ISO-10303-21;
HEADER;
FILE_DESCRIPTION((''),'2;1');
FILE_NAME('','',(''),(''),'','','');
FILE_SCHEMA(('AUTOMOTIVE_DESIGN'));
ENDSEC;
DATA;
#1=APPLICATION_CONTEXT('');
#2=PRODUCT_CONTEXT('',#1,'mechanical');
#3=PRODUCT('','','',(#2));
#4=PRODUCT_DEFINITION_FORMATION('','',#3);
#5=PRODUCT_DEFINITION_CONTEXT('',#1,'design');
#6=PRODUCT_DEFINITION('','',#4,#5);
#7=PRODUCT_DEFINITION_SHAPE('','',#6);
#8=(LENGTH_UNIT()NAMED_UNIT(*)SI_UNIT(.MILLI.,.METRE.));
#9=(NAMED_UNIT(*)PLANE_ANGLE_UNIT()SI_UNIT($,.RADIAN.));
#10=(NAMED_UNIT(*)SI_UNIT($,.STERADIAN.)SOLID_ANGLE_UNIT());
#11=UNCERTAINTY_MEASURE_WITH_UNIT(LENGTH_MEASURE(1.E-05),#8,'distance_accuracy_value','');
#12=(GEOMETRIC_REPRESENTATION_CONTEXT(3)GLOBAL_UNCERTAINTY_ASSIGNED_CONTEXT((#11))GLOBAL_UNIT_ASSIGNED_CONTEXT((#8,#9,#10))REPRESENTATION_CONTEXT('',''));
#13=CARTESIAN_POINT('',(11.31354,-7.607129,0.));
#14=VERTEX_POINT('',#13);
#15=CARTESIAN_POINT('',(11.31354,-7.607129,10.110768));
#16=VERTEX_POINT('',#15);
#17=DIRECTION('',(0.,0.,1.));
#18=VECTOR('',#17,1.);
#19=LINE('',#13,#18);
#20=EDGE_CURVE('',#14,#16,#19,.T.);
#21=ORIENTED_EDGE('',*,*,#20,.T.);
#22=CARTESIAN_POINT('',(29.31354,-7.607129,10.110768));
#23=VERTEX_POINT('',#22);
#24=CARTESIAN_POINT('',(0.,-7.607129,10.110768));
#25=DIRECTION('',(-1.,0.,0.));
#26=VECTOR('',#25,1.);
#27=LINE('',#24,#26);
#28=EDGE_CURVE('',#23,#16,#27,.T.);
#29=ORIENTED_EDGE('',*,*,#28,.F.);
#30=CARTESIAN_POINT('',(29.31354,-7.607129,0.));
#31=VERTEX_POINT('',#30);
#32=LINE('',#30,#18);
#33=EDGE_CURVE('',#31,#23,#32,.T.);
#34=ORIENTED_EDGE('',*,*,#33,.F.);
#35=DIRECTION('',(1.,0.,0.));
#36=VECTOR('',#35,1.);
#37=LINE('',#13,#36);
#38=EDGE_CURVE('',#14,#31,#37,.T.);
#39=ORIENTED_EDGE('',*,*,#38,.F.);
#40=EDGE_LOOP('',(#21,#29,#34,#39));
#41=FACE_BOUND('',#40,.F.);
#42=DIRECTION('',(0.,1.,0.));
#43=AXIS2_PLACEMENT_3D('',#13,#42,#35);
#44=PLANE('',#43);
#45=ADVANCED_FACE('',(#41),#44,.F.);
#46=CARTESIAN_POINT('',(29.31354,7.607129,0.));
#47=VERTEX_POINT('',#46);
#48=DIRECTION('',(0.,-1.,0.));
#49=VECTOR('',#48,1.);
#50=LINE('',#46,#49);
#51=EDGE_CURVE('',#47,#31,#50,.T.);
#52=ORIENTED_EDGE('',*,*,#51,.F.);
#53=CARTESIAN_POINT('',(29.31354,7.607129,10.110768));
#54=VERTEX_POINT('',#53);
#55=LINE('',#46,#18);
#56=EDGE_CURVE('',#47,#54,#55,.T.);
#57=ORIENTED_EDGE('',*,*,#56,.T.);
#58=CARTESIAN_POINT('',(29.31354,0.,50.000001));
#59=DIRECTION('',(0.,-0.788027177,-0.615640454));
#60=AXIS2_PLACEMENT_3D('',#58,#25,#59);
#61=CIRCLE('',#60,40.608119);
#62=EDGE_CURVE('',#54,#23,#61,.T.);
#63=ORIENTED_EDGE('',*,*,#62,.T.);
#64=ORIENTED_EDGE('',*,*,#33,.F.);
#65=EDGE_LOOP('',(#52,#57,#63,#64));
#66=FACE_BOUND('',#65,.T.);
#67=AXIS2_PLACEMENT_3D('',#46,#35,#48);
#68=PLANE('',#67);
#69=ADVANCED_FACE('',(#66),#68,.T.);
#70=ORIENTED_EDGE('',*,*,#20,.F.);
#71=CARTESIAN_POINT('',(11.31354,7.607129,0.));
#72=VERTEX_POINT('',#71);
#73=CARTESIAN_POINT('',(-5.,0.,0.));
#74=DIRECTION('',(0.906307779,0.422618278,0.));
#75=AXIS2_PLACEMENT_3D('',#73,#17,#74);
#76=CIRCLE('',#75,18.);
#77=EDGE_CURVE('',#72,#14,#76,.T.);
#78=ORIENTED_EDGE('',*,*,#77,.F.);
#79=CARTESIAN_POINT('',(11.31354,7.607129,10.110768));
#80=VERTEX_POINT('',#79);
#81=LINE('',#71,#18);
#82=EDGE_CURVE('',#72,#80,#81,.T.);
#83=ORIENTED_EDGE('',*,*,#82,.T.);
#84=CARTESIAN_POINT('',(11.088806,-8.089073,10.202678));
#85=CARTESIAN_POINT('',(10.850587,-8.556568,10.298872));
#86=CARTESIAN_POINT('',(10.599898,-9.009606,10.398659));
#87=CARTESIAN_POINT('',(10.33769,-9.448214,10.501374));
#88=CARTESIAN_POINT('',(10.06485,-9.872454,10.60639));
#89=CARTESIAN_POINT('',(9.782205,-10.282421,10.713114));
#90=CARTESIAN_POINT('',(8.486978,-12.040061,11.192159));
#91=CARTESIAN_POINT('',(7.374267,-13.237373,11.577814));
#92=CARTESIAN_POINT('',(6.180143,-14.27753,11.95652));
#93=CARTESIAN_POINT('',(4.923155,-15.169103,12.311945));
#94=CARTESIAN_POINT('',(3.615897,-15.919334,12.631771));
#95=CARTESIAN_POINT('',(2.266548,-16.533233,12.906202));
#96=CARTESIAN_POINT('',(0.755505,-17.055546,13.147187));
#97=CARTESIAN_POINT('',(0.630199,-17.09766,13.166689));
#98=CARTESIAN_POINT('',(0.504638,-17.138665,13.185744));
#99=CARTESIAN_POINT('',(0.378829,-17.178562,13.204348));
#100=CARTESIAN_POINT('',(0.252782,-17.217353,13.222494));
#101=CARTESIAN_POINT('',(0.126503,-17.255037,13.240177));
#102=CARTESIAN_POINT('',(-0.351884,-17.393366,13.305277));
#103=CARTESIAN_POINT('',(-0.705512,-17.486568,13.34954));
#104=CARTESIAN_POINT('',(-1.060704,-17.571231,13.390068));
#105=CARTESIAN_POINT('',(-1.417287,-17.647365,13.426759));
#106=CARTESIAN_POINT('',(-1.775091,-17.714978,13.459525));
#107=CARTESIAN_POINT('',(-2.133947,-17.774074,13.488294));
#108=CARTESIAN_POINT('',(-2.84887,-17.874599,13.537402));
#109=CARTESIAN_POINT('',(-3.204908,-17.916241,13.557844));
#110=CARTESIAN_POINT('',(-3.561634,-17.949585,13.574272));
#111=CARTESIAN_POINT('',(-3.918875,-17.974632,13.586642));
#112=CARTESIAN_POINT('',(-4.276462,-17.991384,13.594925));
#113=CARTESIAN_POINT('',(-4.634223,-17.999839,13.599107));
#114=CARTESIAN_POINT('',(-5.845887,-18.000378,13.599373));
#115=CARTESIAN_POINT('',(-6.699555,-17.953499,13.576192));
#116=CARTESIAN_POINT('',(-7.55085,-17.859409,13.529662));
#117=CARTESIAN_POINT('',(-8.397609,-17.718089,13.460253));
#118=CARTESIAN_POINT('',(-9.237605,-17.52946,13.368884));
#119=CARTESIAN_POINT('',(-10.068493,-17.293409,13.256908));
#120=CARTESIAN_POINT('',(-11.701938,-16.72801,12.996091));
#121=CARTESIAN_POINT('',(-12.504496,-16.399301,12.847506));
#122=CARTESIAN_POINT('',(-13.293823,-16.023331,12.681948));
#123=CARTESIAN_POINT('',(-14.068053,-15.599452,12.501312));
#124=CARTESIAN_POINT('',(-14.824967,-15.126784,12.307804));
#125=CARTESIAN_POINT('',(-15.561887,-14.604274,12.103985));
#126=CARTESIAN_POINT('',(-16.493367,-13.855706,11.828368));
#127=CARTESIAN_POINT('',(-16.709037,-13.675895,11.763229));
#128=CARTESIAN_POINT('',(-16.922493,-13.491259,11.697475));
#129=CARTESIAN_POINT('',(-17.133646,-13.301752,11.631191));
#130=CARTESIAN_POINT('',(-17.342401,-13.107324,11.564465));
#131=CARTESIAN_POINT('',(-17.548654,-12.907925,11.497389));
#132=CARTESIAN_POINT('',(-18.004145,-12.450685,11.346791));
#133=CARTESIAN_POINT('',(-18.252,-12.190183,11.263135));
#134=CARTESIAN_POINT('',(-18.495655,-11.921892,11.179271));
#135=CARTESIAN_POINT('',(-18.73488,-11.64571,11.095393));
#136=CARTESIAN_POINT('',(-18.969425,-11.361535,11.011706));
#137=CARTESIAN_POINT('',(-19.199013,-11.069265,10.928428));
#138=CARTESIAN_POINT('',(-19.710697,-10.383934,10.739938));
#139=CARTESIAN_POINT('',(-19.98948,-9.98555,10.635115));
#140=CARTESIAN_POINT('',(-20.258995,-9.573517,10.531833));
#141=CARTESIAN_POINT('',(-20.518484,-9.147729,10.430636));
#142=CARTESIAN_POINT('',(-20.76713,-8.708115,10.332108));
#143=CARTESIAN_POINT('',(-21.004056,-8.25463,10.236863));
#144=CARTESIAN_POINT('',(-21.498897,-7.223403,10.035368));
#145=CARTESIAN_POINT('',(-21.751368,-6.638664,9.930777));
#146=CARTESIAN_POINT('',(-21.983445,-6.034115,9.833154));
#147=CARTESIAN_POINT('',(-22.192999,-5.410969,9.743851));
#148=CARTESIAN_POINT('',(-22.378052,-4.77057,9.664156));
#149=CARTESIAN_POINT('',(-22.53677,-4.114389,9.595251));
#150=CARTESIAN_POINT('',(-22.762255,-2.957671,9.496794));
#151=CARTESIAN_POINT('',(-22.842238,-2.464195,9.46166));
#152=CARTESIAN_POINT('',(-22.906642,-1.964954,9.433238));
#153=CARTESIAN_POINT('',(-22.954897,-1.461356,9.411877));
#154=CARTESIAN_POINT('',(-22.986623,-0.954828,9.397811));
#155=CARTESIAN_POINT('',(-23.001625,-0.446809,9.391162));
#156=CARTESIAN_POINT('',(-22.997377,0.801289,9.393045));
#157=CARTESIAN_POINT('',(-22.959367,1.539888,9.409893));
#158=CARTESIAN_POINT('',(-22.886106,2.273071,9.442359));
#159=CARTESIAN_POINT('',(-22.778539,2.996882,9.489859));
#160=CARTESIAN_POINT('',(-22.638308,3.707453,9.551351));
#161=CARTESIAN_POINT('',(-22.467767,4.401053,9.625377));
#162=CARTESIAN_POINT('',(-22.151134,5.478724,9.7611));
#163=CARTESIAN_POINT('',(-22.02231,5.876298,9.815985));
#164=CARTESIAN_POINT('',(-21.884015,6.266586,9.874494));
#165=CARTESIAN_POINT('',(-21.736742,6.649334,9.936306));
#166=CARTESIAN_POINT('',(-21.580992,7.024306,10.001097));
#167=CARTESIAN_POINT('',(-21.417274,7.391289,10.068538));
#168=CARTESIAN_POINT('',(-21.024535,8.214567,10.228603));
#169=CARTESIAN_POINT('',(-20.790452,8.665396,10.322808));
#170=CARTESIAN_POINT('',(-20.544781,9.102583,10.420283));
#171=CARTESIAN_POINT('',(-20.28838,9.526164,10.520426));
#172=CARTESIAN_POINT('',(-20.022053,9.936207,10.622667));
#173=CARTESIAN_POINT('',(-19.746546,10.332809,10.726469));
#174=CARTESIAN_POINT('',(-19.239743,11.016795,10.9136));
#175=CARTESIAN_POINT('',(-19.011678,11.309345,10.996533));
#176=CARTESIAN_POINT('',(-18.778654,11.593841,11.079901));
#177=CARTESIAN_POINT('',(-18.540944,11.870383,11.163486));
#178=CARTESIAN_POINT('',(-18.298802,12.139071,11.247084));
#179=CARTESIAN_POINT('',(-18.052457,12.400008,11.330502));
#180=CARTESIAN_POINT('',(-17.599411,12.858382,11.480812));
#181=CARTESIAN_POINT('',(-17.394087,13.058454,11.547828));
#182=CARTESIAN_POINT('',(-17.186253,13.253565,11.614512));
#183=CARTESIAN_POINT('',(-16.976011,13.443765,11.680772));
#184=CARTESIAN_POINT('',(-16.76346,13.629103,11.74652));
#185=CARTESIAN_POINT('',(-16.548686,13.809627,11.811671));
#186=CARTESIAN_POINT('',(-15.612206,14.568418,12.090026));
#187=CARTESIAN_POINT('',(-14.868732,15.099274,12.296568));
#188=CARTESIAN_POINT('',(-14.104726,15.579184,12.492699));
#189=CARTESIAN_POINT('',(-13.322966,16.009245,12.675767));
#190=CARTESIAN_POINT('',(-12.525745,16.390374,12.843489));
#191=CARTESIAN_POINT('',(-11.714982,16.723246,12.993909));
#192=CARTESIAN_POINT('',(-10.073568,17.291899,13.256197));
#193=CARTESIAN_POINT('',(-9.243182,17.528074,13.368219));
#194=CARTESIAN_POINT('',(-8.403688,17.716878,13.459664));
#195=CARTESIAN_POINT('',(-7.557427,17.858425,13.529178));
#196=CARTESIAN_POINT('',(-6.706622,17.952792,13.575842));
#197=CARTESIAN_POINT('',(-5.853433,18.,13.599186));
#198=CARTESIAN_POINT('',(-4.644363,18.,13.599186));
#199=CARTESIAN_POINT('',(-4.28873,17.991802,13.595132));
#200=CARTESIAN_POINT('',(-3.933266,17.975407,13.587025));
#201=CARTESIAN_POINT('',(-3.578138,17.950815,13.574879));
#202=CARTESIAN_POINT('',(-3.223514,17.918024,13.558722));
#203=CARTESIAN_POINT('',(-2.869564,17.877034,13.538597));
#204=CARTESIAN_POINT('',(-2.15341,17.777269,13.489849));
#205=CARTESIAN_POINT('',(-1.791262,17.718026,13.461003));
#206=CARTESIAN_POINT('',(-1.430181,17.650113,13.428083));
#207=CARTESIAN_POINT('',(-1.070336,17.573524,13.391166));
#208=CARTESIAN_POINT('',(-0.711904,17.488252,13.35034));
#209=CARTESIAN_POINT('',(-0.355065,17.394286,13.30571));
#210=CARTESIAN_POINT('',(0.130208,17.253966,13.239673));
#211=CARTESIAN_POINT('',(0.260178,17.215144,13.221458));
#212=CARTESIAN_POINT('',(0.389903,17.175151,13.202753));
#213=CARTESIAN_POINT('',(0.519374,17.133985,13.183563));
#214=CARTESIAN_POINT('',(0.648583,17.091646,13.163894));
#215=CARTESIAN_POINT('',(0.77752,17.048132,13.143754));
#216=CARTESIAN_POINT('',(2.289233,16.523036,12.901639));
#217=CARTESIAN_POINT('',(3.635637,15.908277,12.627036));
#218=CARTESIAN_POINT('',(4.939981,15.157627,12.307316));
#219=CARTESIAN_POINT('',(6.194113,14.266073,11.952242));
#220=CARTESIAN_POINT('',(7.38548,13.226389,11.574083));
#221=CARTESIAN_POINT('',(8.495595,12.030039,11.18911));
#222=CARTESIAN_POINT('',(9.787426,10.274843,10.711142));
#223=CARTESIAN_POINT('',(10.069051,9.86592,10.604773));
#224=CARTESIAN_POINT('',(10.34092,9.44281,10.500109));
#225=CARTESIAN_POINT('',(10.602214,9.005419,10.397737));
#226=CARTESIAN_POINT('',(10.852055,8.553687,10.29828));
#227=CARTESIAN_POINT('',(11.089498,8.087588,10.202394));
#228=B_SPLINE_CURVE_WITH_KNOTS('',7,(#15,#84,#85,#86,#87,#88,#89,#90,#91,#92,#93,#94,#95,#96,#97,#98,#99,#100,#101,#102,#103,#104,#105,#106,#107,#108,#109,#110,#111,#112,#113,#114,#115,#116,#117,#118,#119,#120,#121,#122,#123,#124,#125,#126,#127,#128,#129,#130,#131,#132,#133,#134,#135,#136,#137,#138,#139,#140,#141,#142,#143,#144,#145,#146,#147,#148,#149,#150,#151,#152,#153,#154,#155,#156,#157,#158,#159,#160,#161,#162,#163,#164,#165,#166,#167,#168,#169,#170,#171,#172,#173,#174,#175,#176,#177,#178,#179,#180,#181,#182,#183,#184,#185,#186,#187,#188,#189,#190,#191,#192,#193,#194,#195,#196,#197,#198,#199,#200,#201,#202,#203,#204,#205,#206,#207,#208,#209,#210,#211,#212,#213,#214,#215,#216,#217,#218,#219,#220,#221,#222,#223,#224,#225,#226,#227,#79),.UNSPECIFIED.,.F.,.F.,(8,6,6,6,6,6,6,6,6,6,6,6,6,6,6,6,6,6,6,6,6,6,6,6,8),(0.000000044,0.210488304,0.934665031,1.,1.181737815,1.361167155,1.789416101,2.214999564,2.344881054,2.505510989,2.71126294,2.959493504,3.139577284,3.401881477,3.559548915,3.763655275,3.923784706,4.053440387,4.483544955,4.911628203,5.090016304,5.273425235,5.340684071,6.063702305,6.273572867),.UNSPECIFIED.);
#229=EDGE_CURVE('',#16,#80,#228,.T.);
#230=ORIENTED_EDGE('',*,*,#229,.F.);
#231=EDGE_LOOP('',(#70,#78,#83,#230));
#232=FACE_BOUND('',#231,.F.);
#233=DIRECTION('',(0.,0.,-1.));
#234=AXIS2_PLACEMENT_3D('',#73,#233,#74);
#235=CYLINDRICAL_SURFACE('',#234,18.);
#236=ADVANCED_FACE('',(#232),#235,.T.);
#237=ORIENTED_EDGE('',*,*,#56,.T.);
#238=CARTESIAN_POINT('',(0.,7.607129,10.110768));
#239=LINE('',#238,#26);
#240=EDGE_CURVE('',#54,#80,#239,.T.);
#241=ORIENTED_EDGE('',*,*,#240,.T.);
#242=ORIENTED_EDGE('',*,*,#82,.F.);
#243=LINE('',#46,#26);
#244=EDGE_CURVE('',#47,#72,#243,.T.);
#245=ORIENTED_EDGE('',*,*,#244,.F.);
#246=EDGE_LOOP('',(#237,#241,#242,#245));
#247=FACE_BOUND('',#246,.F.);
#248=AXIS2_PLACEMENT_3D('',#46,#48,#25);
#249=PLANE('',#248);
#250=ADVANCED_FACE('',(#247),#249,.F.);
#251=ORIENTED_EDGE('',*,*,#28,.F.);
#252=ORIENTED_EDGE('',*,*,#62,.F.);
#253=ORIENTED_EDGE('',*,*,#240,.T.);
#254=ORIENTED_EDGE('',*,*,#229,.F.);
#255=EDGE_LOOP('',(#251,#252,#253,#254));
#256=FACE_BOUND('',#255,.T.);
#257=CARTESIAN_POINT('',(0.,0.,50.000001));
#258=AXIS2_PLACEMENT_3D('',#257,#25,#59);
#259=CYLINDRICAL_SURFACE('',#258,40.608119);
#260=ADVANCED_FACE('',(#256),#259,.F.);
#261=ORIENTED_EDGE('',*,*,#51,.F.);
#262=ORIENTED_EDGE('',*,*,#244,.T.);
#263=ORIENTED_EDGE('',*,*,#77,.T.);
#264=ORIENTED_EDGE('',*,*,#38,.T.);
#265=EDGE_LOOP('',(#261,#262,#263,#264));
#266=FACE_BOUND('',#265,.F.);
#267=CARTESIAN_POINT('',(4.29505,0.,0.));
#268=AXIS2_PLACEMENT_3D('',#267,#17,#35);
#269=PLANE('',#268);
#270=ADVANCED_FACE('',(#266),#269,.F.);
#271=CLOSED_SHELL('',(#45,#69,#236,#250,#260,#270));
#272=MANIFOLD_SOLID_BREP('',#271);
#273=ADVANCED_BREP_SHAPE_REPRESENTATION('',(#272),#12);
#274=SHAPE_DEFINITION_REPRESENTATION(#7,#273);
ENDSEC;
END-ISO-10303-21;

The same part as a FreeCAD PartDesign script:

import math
import FreeCAD as App
import Part
import Sketcher

V = App.Vector
Q = App.Units.Quantity

doc = App.newDocument("Part")
body = doc.addObject("PartDesign::Body", "Body")

sketch1 = body.newObject("Sketcher::SketchObject", "Sketch")
sketch1.AttachmentSupport = (doc.getObject("XY_Plane"), [""])
sketch1.MapMode = "FlatFace"
sketch1.addGeometry(Part.LineSegment(V(29.31354, 7.607129, 0), V(11.31354, 7.607129, 0)), False)
sketch1.addGeometry(Part.ArcOfCircle(Part.Circle(V(-5, 0, 0), V(0, 0, 1), 18), math.radians(25.000001), math.radians(334.999999)), False)
sketch1.addGeometry(Part.LineSegment(V(11.31354, -7.607129, 0), V(29.31354, -7.607129, 0)), False)
sketch1.addGeometry(Part.LineSegment(V(29.31354, -7.607129, 0), V(29.31354, 7.607129, 0)), False)
sketch1.addConstraint(Sketcher.Constraint("Coincident", 0, 2, 1, 1))
sketch1.addConstraint(Sketcher.Constraint("Coincident", 1, 2, 2, 1))
sketch1.addConstraint(Sketcher.Constraint("Coincident", 2, 2, 3, 1))
sketch1.addConstraint(Sketcher.Constraint("Coincident", 3, 2, 0, 1))
sketch1.addConstraint(Sketcher.Constraint("Horizontal", 0))
sketch1.addConstraint(Sketcher.Constraint("Horizontal", 2))
sketch1.addConstraint(Sketcher.Constraint("Vertical", 3))
sketch1.addConstraint(Sketcher.Constraint("Symmetric", 0, 2, 1, 2, -1))
sketch1.addConstraint(Sketcher.Constraint("Radius", 1, Q("18 mm")))
sketch1.addConstraint(Sketcher.Constraint("DistanceX", 0, 2, 0, 1, Q("18 mm")))
sketch1.addConstraint(Sketcher.Constraint("DistanceX", 1, 3, -1, 1, Q("5 mm")))
sketch1.addConstraint(Sketcher.Constraint("DistanceY", 3, 1, 3, 2, Q("15.214258 mm")))
pad1 = body.newObject("PartDesign::Pad", "Pad")
pad1.Profile = sketch1
pad1.Length = 25

sketch2 = body.newObject("Sketcher::SketchObject", "Sketch001")
sketch2.AttachmentSupport = (doc.getObject("YZ_Plane"), [""])
sketch2.MapMode = "FlatFace"
sketch2.addGeometry(Part.ArcOfCircle(Part.Circle(V(0, 50.000001, 0), V(0, 0, 1), 40.608119), math.radians(-142.001528), math.radians(-37.998472)), False)
sketch2.addGeometry(Part.LineSegment(V(32.000301, 25, 0), V(0, 50, 0)), False)
sketch2.addGeometry(Part.LineSegment(V(0, 50, 0), V(-32.000301, 25, 0)), False)
sketch2.addConstraint(Sketcher.Constraint("Coincident", 0, 2, 1, 1))
sketch2.addConstraint(Sketcher.Constraint("Coincident", 1, 2, 2, 1))
sketch2.addConstraint(Sketcher.Constraint("Coincident", 2, 2, 0, 1))
sketch2.addConstraint(Sketcher.Constraint("Coincident", 1, 2, 0, 3))
sketch2.addConstraint(Sketcher.Constraint("Symmetric", 0, 2, 2, 2, -2))
sketch2.addConstraint(Sketcher.Constraint("DistanceY", -1, 1, 0, 3, Q("50.000001 mm")))
sketch2.addConstraint(Sketcher.Constraint("DistanceY", -1, 1, 0, 2, Q("25 mm")))
sketch2.addConstraint(Sketcher.Constraint("Radius", 0, Q("40.608119 mm")))
pocket1 = body.newObject("PartDesign::Pocket", "Pocket")
pocket1.Profile = sketch2
pocket1.Type = "ThroughAll"
pocket1.Midplane = True

doc.recompute()
